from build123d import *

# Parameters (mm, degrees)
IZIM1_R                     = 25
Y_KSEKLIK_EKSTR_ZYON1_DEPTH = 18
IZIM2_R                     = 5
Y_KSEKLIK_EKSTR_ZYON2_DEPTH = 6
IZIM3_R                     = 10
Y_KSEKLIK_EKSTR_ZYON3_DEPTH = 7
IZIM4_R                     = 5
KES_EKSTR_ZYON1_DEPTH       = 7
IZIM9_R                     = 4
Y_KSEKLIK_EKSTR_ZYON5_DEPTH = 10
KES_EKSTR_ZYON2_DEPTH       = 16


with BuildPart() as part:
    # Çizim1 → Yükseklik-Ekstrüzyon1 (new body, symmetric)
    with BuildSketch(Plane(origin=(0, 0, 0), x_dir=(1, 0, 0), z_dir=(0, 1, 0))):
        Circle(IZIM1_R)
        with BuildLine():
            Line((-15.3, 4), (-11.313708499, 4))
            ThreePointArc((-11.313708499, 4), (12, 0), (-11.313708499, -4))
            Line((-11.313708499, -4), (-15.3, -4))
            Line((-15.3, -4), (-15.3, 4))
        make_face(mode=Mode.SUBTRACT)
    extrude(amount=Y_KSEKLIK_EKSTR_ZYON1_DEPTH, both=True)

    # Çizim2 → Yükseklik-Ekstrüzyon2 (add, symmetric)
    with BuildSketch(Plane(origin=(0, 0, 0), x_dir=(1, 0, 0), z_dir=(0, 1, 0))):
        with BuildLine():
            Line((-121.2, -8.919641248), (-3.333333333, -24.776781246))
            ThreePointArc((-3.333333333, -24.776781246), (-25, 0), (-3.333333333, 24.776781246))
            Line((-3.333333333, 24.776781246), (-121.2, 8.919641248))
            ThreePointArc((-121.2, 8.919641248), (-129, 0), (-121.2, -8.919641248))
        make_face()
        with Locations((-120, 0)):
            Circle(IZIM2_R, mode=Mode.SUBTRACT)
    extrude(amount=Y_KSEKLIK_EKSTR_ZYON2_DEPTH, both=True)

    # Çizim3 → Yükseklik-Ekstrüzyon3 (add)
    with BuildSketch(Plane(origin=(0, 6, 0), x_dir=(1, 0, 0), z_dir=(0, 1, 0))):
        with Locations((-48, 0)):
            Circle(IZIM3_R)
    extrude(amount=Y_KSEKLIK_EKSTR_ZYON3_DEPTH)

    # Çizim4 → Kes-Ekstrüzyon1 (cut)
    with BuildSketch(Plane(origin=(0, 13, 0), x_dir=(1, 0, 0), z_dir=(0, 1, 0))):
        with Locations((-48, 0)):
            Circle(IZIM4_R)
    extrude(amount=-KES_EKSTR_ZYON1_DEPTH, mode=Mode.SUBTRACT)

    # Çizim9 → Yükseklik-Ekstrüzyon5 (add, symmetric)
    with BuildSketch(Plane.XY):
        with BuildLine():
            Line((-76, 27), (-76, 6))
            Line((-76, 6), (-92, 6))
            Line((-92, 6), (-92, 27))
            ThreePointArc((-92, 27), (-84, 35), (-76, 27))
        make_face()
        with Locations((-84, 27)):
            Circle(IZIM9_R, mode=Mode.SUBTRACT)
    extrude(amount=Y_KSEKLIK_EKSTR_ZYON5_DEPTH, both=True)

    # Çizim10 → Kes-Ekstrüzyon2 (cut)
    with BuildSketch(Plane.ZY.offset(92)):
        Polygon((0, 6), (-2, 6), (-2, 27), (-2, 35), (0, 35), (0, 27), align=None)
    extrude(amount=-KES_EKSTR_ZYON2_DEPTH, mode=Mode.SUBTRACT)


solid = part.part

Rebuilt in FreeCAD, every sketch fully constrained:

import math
import FreeCAD as App
import Part
import Sketcher

V = App.Vector


def add_polygon(sketch, points):
    """Adds a closed chain of lines whose ends are joined by coincident constraints."""
    first, n = sketch.GeometryCount, len(points)
    for a, b in zip(points, points[1:] + points[:1]):
        sketch.addGeometry(Part.LineSegment(App.Vector(*a, 0), App.Vector(*b, 0)), False)
    for i in range(n):
        sketch.addConstraint(Sketcher.Constraint("Coincident", first + i, 2, first + (i + 1) % n, 1))

doc = App.newDocument("Part")
params = doc.addObject("Spreadsheet::Sheet", "Params")
for row, (alias, value) in enumerate([
    ("sketch1_diameter", "50 mm"),
    ("sketch1_radius", "12 mm"),
    ("sketch1_height", "8 mm"),
    ("pad1_length", "36 mm"),
    ("sketch2_diameter", "10 mm"),
    ("sketch2_radius", "25 mm"),
    ("sketch2_radius2", "9 mm"),
    ("pad2_length", "12 mm"),
    ("sketch3_diameter", "20 mm"),
    ("pad3_length", "7 mm"),
    ("sketch4_diameter", "10 mm"),
    ("pocket1_length", "7 mm"),
    ("sketch5_diameter", "8 mm"),
    ("sketch5_radius", "8 mm"),
    ("sketch5_height", "21 mm"),
    ("pad4_length", "20 mm"),
    ("sketch6_width", "29 mm"),
    ("sketch6_height", "2 mm"),
    ("pocket2_length", "16 mm"),
], start=1):
    params.set(f"A{row}", alias)
    params.set(f"B{row}", "=" + value)
    params.setAlias(f"B{row}", alias)

body = doc.addObject("PartDesign::Body", "Body")

sketch1 = body.newObject("Sketcher::SketchObject", "Sketch")
sketch1.AttachmentSupport = (doc.getObject("XZ_Plane"), [""])
sketch1.MapMode = "FlatFace"
sketch1.addGeometry([
    Part.Circle(V(0, 0, 0), V(0, 0, 1), 25),
    Part.LineSegment(V(-15.3, 4, 0), V(-15.3, -4, 0)),
    Part.LineSegment(V(-15.3, -4, 0), V(-11.3, -4, 0)),
    Part.ArcOfCircle(Part.Circle(V(0, 0, 0), V(0, 0, 1), 12), math.radians(-161), math.radians(161)),
    Part.LineSegment(V(-11.3, 4, 0), V(-15.3, 4, 0)),
], False)
sketch1.addConstraint([
    Sketcher.Constraint("Coincident", 1, 2, 2, 1),
    Sketcher.Constraint("Coincident", 2, 2, 3, 1),
    Sketcher.Constraint("Coincident", 3, 2, 4, 1),
    Sketcher.Constraint("Coincident", 4, 2, 1, 1),
    Sketcher.Constraint("Vertical", 1),
    Sketcher.Constraint("Horizontal", 2),
    Sketcher.Constraint("Horizontal", 4),
    Sketcher.Constraint("Coincident", 0, 3, -1, 1),
    Sketcher.Constraint("Coincident", 3, 3, -1, 1),
    Sketcher.Constraint("Vertical", 2, 2, 3, 2),
    Sketcher.Constraint("Diameter", 0, 50.0),
    Sketcher.Constraint("Radius", 3, 12.0),
    Sketcher.Constraint("DistanceY", 1, 2, 1, 1, 8.0),
    Sketcher.Constraint("DistanceX", 1, 2, -1, 1, 15.3),
])
sketch1.setExpression("Constraints[10]", "Params.sketch1_diameter")
sketch1.setExpression("Constraints[11]", "Params.sketch1_radius")
sketch1.setExpression("Constraints[12]", "Params.sketch1_height")
pad1 = body.newObject("PartDesign::Pad", "Pad")
pad1.Profile = sketch1
pad1.setExpression("Length", "Params.pad1_length")
pad1.Midplane = True

sketch2 = body.newObject("Sketcher::SketchObject", "Sketch001")
sketch2.AttachmentSupport = (doc.getObject("XZ_Plane"), [""])
sketch2.MapMode = "FlatFace"
sketch2.addGeometry([
    Part.LineSegment(V(-121, 9, 0), V(-3, 25, 0)),
    Part.ArcOfCircle(Part.Circle(V(0, 0, 0), V(0, 0, 1), 25), math.radians(98), math.radians(262)),
    Part.LineSegment(V(-3, -25, 0), V(-121, -9, 0)),
    Part.ArcOfCircle(Part.Circle(V(-120, 0, 0), V(0, 0, 1), 9), math.radians(98), math.radians(262)),
    Part.Circle(V(-120, 0, 0), V(0, 0, 1), 5),
], False)
sketch2.addConstraint([
    Sketcher.Constraint("Tangent", 0, 2, 1, 1),
    Sketcher.Constraint("Tangent", 1, 2, 2, 1),
    Sketcher.Constraint("Tangent", 2, 2, 3, 2),
    Sketcher.Constraint("Tangent", 3, 1, 0, 1),
    Sketcher.Constraint("Coincident", 1, 3, -1, 1),
    Sketcher.Constraint("Coincident", 4, 3, 3, 3),
    Sketcher.Constraint("PointOnObject", 3, 3, -1),
    Sketcher.Constraint("Diameter", 4, 10.0),
    Sketcher.Constraint("Radius", 1, 25.0),
    Sketcher.Constraint("Radius", 3, 9.0),
    Sketcher.Constraint("DistanceX", 3, 3, -1, 1, 120.0),
])
sketch2.setExpression("Constraints[7]", "Params.sketch2_diameter")
sketch2.setExpression("Constraints[8]", "Params.sketch2_radius")
sketch2.setExpression("Constraints[9]", "Params.sketch2_radius2")
pad2 = body.newObject("PartDesign::Pad", "Pad001")
pad2.Profile = sketch2
pad2.setExpression("Length", "Params.pad2_length")
pad2.Midplane = True

sketch3 = body.newObject("Sketcher::SketchObject", "Sketch002")
sketch3.AttachmentSupport = (doc.getObject("XZ_Plane"), [""])
sketch3.MapMode = "FlatFace"
sketch3.AttachmentOffset = App.Placement(V(0, 0, -6), App.Rotation())
sketch3.addGeometry(Part.Circle(V(-48, 0, 0), V(0, 0, 1), 10), False)
sketch3.addConstraint([
    Sketcher.Constraint("PointOnObject", 0, 3, -1),
    Sketcher.Constraint("Diameter", 0, 20.0),
    Sketcher.Constraint("DistanceX", 0, 3, -1, 1, 48.0),
])
sketch3.setExpression("Constraints[1]", "Params.sketch3_diameter")
pad3 = body.newObject("PartDesign::Pad", "Pad002")
pad3.Profile = sketch3
pad3.setExpression("Length", "Params.pad3_length")
pad3.Reversed = True

sketch4 = body.newObject("Sketcher::SketchObject", "Sketch003")
sketch4.AttachmentSupport = (doc.getObject("XZ_Plane"), [""])
sketch4.MapMode = "FlatFace"
sketch4.AttachmentOffset = App.Placement(V(0, 0, -13), App.Rotation())
sketch4.addGeometry(Part.Circle(V(-48, 0, 0), V(0, 0, 1), 5), False)
sketch4.addConstraint([
    Sketcher.Constraint("PointOnObject", 0, 3, -1),
    Sketcher.Constraint("Diameter", 0, 10.0),
    Sketcher.Constraint("DistanceX", 0, 3, -1, 1, 48.0),
])
sketch4.setExpression("Constraints[1]", "Params.sketch4_diameter")
pocket1 = body.newObject("PartDesign::Pocket", "Pocket")
pocket1.Profile = sketch4
pocket1.setExpression("Length", "Params.pocket1_length")
pocket1.Reversed = True

sketch5 = body.newObject("Sketcher::SketchObject", "Sketch004")
sketch5.AttachmentSupport = (doc.getObject("XY_Plane"), [""])
sketch5.MapMode = "FlatFace"
sketch5.addGeometry([
    Part.LineSegment(V(-76, 6, 0), V(-76, 27, 0)),
    Part.ArcOfCircle(Part.Circle(V(-84, 27, 0), V(0, 0, 1), 8), math.radians(0), math.radians(180)),
    Part.LineSegment(V(-92, 27, 0), V(-92, 6, 0)),
    Part.LineSegment(V(-92, 6, 0), V(-76, 6, 0)),
    Part.Circle(V(-84, 27, 0), V(0, 0, 1), 4),
], False)
sketch5.addConstraint([
    Sketcher.Constraint("Tangent", 0, 2, 1, 1),
    Sketcher.Constraint("Tangent", 1, 2, 2, 1),
    Sketcher.Constraint("Coincident", 2, 2, 3, 1),
    Sketcher.Constraint("Coincident", 3, 2, 0, 1),
    Sketcher.Constraint("Vertical", 0),
    Sketcher.Constraint("Vertical", 2),
    Sketcher.Constraint("Horizontal", 3),
    Sketcher.Constraint("Coincident", 4, 3, 1, 3),
    Sketcher.Constraint("Diameter", 4, 8.0),
    Sketcher.Constraint("Radius", 1, 8.0),
    Sketcher.Constraint("DistanceY", 0, 1, 0, 2, 21.0),
    Sketcher.Constraint("DistanceX", 1, 3, -1, 1, 84.0),
    Sketcher.Constraint("DistanceY", -1, 1, 1, 3, 27.0),
])
sketch5.setExpression("Constraints[8]", "Params.sketch5_diameter")
sketch5.setExpression("Constraints[9]", "Params.sketch5_radius")
sketch5.setExpression("Constraints[10]", "Params.sketch5_height")
pad4 = body.newObject("PartDesign::Pad", "Pad003")
pad4.Profile = sketch5
pad4.setExpression("Length", "Params.pad4_length")
pad4.Midplane = True

sketch6 = body.newObject("Sketcher::SketchObject", "Sketch005")
sketch6.AttachmentSupport = (doc.getObject("YZ_Plane"), [""])
sketch6.MapMode = "FlatFace"
sketch6.AttachmentOffset = App.Placement(V(0, 0, -92), App.Rotation())
add_polygon(sketch6, [(6, -2), (6, 0), (35, 0), (35, -2)])
sketch6.addConstraint([
    Sketcher.Constraint("Vertical", 0),
    Sketcher.Constraint("Horizontal", 1),
    Sketcher.Constraint("Vertical", 2),
    Sketcher.Constraint("Horizontal", 3),
    Sketcher.Constraint("PointOnObject", 0, 2, -1),
    Sketcher.Constraint("DistanceX", 1, 1, 1, 2, 29.0),
    Sketcher.Constraint("DistanceY", 0, 1, 0, 2, 2.0),
    Sketcher.Constraint("DistanceX", -1, 1, 0, 2, 6.0),
])
sketch6.setExpression("Constraints[9]", "Params.sketch6_width")
sketch6.setExpression("Constraints[10]", "Params.sketch6_height")
pocket2 = body.newObject("PartDesign::Pocket", "Pocket001")
pocket2.Profile = sketch6
pocket2.setExpression("Length", "Params.pocket2_length")
pocket2.Reversed = True

doc.recompute()
